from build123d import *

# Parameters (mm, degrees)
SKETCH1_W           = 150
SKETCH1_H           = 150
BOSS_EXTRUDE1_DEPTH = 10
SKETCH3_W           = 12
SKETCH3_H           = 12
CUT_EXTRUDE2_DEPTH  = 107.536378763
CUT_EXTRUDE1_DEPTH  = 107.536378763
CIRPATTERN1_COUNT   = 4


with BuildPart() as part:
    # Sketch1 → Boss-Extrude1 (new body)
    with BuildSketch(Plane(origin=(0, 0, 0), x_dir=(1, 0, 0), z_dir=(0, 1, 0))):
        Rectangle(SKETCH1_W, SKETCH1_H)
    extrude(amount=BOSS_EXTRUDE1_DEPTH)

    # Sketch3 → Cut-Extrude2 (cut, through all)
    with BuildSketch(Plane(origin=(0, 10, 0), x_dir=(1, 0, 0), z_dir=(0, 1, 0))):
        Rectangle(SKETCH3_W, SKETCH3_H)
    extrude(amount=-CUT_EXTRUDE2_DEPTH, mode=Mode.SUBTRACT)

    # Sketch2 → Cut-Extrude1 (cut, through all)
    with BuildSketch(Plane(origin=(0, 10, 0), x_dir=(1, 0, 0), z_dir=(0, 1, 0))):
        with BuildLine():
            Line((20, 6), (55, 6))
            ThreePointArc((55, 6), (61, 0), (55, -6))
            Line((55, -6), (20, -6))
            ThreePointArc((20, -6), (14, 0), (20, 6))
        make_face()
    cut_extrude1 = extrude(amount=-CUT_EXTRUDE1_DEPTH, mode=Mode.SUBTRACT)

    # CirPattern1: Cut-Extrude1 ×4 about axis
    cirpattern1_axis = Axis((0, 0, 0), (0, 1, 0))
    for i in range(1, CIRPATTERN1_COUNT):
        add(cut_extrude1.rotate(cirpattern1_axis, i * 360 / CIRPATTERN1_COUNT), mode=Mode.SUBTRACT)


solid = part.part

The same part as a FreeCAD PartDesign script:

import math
import FreeCAD as App
import Part
import Sketcher

V = App.Vector

doc = App.newDocument("Part")
body = doc.addObject("PartDesign::Body", "Body")

sketch1 = body.newObject("Sketcher::SketchObject", "Sketch")
sketch1.AttachmentSupport = (doc.getObject("XZ_Plane"), [""])
sketch1.MapMode = "FlatFace"
sketch1.addGeometry(Part.LineSegment(V(-75, -75, 0), V(-75, 75, 0)), False)
sketch1.addGeometry(Part.LineSegment(V(-75, 75, 0), V(75, 75, 0)), False)
sketch1.addGeometry(Part.LineSegment(V(75, 75, 0), V(75, -75, 0)), False)
sketch1.addGeometry(Part.LineSegment(V(75, -75, 0), V(-75, -75, 0)), False)
sketch1.addConstraint(Sketcher.Constraint("Coincident", 0, 2, 1, 1))
sketch1.addConstraint(Sketcher.Constraint("Coincident", 1, 2, 2, 1))
sketch1.addConstraint(Sketcher.Constraint("Coincident", 2, 2, 3, 1))
sketch1.addConstraint(Sketcher.Constraint("Coincident", 3, 2, 0, 1))
sketch1.addConstraint(Sketcher.Constraint("Vertical", 0))
sketch1.addConstraint(Sketcher.Constraint("Horizontal", 1))
sketch1.addConstraint(Sketcher.Constraint("Vertical", 2))
sketch1.addConstraint(Sketcher.Constraint("Horizontal", 3))
sketch1.addConstraint(Sketcher.Constraint("Symmetric", 0, 2, 2, 2, -1, 1))
sketch1.addConstraint(Sketcher.Constraint("Equal", 3, 0))
sketch1.addConstraint(Sketcher.Constraint("DistanceX", 1, 1, 1, 2, 150.0))
pad1 = body.newObject("PartDesign::Pad", "Pad")
pad1.Profile = sketch1
pad1.Length = 10
pad1.Reversed = True

sketch2 = body.newObject("Sketcher::SketchObject", "Sketch001")
sketch2.AttachmentSupport = (doc.getObject("XZ_Plane"), [""])
sketch2.MapMode = "FlatFace"
sketch2.AttachmentOffset = App.Placement(V(0, 0, -10), App.Rotation())
sketch2.addGeometry(Part.LineSegment(V(-6, -6, 0), V(-6, 6, 0)), False)
sketch2.addGeometry(Part.LineSegment(V(-6, 6, 0), V(6, 6, 0)), False)
sketch2.addGeometry(Part.LineSegment(V(6, 6, 0), V(6, -6, 0)), False)
sketch2.addGeometry(Part.LineSegment(V(6, -6, 0), V(-6, -6, 0)), False)
sketch2.addConstraint(Sketcher.Constraint("Coincident", 0, 2, 1, 1))
sketch2.addConstraint(Sketcher.Constraint("Coincident", 1, 2, 2, 1))
sketch2.addConstraint(Sketcher.Constraint("Coincident", 2, 2, 3, 1))
sketch2.addConstraint(Sketcher.Constraint("Coincident", 3, 2, 0, 1))
sketch2.addConstraint(Sketcher.Constraint("Vertical", 0))
sketch2.addConstraint(Sketcher.Constraint("Horizontal", 1))
sketch2.addConstraint(Sketcher.Constraint("Vertical", 2))
sketch2.addConstraint(Sketcher.Constraint("Horizontal", 3))
sketch2.addConstraint(Sketcher.Constraint("Symmetric", 0, 2, 2, 2, -1, 1))
sketch2.addConstraint(Sketcher.Constraint("Equal", 3, 0))
sketch2.addConstraint(Sketcher.Constraint("DistanceX", 1, 1, 1, 2, 12.0))
pocket1 = body.newObject("PartDesign::Pocket", "Pocket")
pocket1.Profile = sketch2
pocket1.Type = "ThroughAll"
pocket1.Reversed = True

sketch3 = body.newObject("Sketcher::SketchObject", "Sketch002")
sketch3.AttachmentSupport = (doc.getObject("XZ_Plane"), [""])
sketch3.MapMode = "FlatFace"
sketch3.AttachmentOffset = App.Placement(V(0, 0, -10), App.Rotation())
sketch3.addGeometry(Part.LineSegment(V(55, -6, 0), V(20, -6, 0)), False)
sketch3.addGeometry(Part.ArcOfCircle(Part.Circle(V(20, 0, 0), V(0, 0, 1), 6), math.radians(90), math.radians(270)), False)
sketch3.addGeometry(Part.LineSegment(V(20, 6, 0), V(55, 6, 0)), False)
sketch3.addGeometry(Part.ArcOfCircle(Part.Circle(V(55, 0, 0), V(0, 0, 1), 6), math.radians(-90), math.radians(90)), False)
sketch3.addConstraint(Sketcher.Constraint("Tangent", 0, 2, 1, 2))
sketch3.addConstraint(Sketcher.Constraint("Tangent", 1, 1, 2, 1))
sketch3.addConstraint(Sketcher.Constraint("Tangent", 2, 2, 3, 2))
sketch3.addConstraint(Sketcher.Constraint("Tangent", 3, 1, 0, 1))
sketch3.addConstraint(Sketcher.Constraint("Horizontal", 0))
sketch3.addConstraint(Sketcher.Constraint("Horizontal", 2))
sketch3.addConstraint(Sketcher.Constraint("PointOnObject", 1, 3, -1))
sketch3.addConstraint(Sketcher.Constraint("Radius", 1, 6.0))
sketch3.addConstraint(Sketcher.Constraint("DistanceX", 0, 2, 0, 1, 35.0))
sketch3.addConstraint(Sketcher.Constraint("DistanceX", -1, 1, 1, 3, 20.0))
pocket2 = body.newObject("PartDesign::Pocket", "Pocket001")
pocket2.Profile = sketch3
pocket2.Type = "ThroughAll"
pocket2.Reversed = True
doc.recompute()

polarpattern = body.newObject("PartDesign::PolarPattern", "PolarPattern")
polarpattern.Originals = [pocket2]
polarpattern.Axis = (doc.getObject("Y_Axis"), [""])
polarpattern.Angle = 360
polarpattern.Occurrences = 4
body.Tip = polarpattern

doc.recompute()
